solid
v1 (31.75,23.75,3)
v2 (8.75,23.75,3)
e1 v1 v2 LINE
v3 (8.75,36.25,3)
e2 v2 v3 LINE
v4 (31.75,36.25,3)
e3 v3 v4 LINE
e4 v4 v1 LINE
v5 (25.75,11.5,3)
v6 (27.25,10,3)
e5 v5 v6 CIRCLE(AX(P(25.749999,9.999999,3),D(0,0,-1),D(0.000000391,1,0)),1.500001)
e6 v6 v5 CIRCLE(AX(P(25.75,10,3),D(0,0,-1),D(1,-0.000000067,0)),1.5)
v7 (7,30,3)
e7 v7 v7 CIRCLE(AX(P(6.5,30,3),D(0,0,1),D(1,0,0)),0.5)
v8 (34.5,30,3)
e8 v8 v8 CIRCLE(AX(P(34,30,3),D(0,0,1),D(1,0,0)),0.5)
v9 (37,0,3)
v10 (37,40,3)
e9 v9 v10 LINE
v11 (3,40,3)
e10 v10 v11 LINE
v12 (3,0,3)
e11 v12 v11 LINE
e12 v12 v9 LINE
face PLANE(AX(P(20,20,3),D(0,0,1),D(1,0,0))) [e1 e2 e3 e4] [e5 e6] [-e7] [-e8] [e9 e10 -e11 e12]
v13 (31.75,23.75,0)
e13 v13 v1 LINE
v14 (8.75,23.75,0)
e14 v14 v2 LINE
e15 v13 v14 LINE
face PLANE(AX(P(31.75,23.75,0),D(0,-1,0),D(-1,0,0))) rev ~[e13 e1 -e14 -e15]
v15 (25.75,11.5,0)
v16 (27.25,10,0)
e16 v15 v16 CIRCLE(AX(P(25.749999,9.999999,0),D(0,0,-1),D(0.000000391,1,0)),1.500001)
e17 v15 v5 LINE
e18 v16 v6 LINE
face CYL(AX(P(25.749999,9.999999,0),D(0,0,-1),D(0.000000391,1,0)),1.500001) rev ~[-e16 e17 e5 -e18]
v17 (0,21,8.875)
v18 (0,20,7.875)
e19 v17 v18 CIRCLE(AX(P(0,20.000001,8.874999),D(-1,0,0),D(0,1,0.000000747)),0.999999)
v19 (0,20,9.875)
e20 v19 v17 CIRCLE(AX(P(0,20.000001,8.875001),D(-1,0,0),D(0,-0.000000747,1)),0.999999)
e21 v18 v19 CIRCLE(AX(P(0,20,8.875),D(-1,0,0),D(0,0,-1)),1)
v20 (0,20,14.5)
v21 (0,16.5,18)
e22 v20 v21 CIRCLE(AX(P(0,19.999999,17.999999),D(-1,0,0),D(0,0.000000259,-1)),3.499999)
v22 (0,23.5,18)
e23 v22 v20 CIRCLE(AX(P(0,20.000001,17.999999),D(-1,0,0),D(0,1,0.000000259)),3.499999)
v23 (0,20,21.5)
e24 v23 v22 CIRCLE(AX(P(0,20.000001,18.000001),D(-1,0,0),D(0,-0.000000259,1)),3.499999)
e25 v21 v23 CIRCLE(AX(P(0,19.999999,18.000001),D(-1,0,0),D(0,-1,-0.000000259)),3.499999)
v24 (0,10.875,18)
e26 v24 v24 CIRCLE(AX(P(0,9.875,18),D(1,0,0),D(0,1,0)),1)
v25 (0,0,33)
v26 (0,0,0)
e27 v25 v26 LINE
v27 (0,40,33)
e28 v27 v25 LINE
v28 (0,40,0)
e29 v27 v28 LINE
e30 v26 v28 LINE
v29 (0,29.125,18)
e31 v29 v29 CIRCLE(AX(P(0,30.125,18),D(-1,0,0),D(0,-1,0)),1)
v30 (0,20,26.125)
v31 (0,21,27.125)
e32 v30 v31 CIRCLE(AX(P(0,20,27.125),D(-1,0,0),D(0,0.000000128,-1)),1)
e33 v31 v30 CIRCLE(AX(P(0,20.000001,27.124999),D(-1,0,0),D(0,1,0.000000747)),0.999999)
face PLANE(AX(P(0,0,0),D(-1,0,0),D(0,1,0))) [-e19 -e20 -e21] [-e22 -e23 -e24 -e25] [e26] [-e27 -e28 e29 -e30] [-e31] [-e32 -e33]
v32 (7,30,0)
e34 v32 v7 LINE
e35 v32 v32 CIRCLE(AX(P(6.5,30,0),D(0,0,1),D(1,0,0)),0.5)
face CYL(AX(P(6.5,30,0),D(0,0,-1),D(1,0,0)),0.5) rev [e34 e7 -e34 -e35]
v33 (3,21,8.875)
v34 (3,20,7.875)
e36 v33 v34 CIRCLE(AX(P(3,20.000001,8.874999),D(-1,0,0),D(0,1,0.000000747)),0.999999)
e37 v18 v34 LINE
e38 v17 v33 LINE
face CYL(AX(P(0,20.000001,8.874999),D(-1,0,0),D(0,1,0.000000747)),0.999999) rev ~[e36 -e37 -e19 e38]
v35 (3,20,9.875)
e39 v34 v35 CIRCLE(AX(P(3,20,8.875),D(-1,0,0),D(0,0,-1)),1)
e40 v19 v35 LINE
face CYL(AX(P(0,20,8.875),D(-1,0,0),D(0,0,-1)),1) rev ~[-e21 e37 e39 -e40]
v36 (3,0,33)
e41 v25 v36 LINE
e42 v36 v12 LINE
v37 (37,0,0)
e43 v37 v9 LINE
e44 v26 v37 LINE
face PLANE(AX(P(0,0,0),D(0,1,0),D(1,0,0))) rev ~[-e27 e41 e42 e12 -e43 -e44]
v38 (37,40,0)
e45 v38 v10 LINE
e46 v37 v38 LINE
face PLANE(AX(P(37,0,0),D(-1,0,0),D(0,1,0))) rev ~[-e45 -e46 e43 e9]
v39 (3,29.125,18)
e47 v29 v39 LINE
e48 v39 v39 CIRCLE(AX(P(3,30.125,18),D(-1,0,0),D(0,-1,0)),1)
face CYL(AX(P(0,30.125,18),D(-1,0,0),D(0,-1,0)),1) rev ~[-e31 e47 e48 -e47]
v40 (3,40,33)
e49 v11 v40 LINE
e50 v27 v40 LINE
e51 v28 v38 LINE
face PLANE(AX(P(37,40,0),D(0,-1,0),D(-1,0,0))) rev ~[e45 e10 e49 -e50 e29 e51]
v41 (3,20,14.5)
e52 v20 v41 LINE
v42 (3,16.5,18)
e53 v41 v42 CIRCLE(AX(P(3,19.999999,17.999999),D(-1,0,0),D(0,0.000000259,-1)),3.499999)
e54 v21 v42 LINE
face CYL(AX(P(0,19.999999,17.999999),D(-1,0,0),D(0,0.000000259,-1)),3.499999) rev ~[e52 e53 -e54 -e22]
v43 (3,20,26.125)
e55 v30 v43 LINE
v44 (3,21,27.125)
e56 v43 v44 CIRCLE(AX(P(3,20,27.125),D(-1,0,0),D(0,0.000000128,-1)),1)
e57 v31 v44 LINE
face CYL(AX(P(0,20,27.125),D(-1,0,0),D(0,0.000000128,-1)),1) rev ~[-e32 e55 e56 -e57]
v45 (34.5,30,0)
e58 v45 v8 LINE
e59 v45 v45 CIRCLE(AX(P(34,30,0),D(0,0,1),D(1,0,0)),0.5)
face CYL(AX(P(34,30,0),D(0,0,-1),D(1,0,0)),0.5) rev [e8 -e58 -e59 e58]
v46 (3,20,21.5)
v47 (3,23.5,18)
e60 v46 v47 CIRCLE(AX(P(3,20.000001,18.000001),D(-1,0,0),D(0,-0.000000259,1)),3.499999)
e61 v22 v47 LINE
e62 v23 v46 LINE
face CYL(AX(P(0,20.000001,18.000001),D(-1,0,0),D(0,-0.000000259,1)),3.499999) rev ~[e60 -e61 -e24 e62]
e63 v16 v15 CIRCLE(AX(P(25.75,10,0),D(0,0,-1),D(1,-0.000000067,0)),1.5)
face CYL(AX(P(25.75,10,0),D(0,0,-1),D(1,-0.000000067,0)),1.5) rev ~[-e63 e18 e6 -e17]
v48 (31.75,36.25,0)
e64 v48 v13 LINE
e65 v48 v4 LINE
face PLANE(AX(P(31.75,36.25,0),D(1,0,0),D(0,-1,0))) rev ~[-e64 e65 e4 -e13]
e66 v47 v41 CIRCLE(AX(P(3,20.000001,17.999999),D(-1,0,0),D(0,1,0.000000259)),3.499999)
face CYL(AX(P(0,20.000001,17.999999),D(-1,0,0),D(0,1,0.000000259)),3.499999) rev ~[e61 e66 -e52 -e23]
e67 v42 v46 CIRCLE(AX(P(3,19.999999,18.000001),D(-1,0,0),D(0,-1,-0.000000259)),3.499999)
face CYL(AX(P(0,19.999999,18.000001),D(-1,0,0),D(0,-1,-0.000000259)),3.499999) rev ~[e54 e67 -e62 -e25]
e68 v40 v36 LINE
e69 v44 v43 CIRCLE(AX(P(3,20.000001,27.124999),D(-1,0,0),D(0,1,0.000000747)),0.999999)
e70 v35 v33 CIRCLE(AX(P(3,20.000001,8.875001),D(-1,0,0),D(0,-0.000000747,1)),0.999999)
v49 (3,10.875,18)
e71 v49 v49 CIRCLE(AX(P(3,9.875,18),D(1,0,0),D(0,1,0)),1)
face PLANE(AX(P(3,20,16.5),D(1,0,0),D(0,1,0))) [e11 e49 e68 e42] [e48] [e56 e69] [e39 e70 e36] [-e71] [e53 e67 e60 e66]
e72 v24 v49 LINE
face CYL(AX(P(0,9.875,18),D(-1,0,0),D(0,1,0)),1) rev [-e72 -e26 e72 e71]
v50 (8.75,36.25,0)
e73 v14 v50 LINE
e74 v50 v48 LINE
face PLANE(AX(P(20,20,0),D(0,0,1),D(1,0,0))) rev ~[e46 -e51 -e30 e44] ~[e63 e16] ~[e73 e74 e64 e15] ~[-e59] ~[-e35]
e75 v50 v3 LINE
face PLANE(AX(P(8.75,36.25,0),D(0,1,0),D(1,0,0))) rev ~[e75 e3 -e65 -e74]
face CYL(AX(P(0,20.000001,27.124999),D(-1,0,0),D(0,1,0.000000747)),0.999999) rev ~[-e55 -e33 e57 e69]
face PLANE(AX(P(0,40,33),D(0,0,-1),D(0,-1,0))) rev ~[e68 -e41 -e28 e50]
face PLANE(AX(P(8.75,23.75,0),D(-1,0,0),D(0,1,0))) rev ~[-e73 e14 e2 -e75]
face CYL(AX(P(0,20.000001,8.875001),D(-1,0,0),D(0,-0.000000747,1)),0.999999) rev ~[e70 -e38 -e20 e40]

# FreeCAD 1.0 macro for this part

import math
import FreeCAD as App
import Part
import Sketcher
from FreeCAD import Vector
Q = App.Units.Quantity


def add_polygon(sketch, points):
    """Adds a closed chain of lines whose ends are joined by coincident constraints."""
    first, n = sketch.GeometryCount, len(points)
    for a, b in zip(points, points[1:] + points[:1]):
        sketch.addGeometry(Part.LineSegment(App.Vector(*a, 0), App.Vector(*b, 0)), False)
    for i in range(n):
        sketch.addConstraint(Sketcher.Constraint("Coincident", first + i, 2, first + (i + 1) % n, 1))

doc = App.newDocument("Part")
body = doc.addObject("PartDesign::Body", "Body")

# Sketch on XY plane
sketch1 = doc.addObject("Sketcher::SketchObject", "Sketch")
body.addObject(sketch1)
sketch1.AttachmentSupport = (doc.XY_Plane, [""])
sketch1.MapMode = "FlatFace"
add_polygon(sketch1, [(37, 0), (37, 40), (0, 40), (0, 0)])  # lines 0-3
sketch1.addGeometry(Part.ArcOfCircle(Part.Circle(Vector(25.749999, 9.999999, 0), Vector(0, 0, 1), 1.500001), math.radians(0.000022), math.radians(89.999978)), False)  # 4
sketch1.addGeometry(Part.ArcOfCircle(Part.Circle(Vector(25.75, 10, 0), Vector(0, 0, 1), 1.5), math.radians(90.000004), math.radians(359.999996)), False)  # 5
sketch1.addGeometry(Part.Circle(Vector(6.5, 30, 0), Vector(0, 0, 1), 0.5), False)  # 6
add_polygon(sketch1, [(31.75, 23.75), (8.75, 23.75), (8.75, 36.25), (31.75, 36.25)])  # lines 7-10
sketch1.addGeometry(Part.Circle(Vector(34, 30, 0), Vector(0, 0, 1), 0.5), False)  # 11
sketch1.addConstraint(Sketcher.Constraint("Tangent", 4, 1, 5, 2))
sketch1.addConstraint(Sketcher.Constraint("Coincident", 5, 1, 4, 2))
sketch1.addConstraint(Sketcher.Constraint("Vertical", 0))
sketch1.addConstraint(Sketcher.Constraint("Horizontal", 1))
sketch1.addConstraint(Sketcher.Constraint("Vertical", 2))
sketch1.addConstraint(Sketcher.Constraint("Horizontal", 3))
sketch1.addConstraint(Sketcher.Constraint("Horizontal", 7))
sketch1.addConstraint(Sketcher.Constraint("Vertical", 8))
sketch1.addConstraint(Sketcher.Constraint("Horizontal", 9))
sketch1.addConstraint(Sketcher.Constraint("Vertical", 10))
sketch1.addConstraint(Sketcher.Constraint("Coincident", 2, 2, -1, 1))
sketch1.addConstraint(Sketcher.Constraint("Equal", 6, 11))
sketch1.addConstraint(Sketcher.Constraint("Horizontal", 6, 3, 11, 3))
sketch1.addConstraint(Sketcher.Constraint("Horizontal", 5, 3, 4, 1))
sketch1.addConstraint(Sketcher.Constraint("Vertical", 4, 3, 5, 1))
sketch1.addConstraint(Sketcher.Constraint("Diameter", 6, Q("1 mm")))
sketch1.addConstraint(Sketcher.Constraint("Radius", 4, Q("1.500001 mm")))
sketch1.addConstraint(Sketcher.Constraint("DistanceX", 1, 2, 1, 1, Q("37 mm")))
sketch1.addConstraint(Sketcher.Constraint("DistanceX", 7, 2, 7, 1, Q("23 mm")))
sketch1.addConstraint(Sketcher.Constraint("DistanceY", 0, 1, 0, 2, Q("40 mm")))
sketch1.addConstraint(Sketcher.Constraint("DistanceY", 8, 1, 8, 2, Q("12.5 mm")))
sketch1.addConstraint(Sketcher.Constraint("DistanceY", -1, 1, 4, 3, Q("9.999999 mm")))
sketch1.addConstraint(Sketcher.Constraint("DistanceY", -1, 1, 6, 3, Q("30 mm")))
sketch1.addConstraint(Sketcher.Constraint("DistanceX", -1, 1, 11, 3, Q("34 mm")))
sketch1.addConstraint(Sketcher.Constraint("DistanceX", 7, 2, 5, 1, Q("17 mm")))
sketch1.addConstraint(Sketcher.Constraint("DistanceX", -1, 1, 6, 3, Q("6.5 mm")))
sketch1.addConstraint(Sketcher.Constraint("DistanceX", -1, 1, 4, 3, Q("25.749999 mm")))
sketch1.addConstraint(Sketcher.Constraint("DistanceY", -1, 1, 7, 2, Q("23.75 mm")))
pad1 = doc.addObject("PartDesign::Pad", "Pad")
body.addObject(pad1)
pad1.Profile = sketch1
pad1.Length = 3

# Sketch on YZ plane
sketch2 = doc.addObject("Sketcher::SketchObject", "Sketch001")
body.addObject(sketch2)
sketch2.AttachmentSupport = (doc.YZ_Plane, [""])
sketch2.MapMode = "FlatFace"
add_polygon(sketch2, [(0, 0), (40, 0), (40, 33), (0, 33)])  # lines 0-3
sketch2.addGeometry(Part.Circle(Vector(9.875, 18, 0), Vector(0, 0, 1), 1), False)  # 4
sketch2.addGeometry(Part.ArcOfCircle(Part.Circle(Vector(20.000001, 8.875001, 0), Vector(0, 0, 1), 0.999999), math.radians(-0.000043), math.radians(90.000043)), False)  # 5
sketch2.addGeometry(Part.ArcOfCircle(Part.Circle(Vector(20.000001, 8.874999, 0), Vector(0, 0, 1), 0.999999), math.radians(-90.000043), math.radians(0.000043)), False)  # 6
sketch2.addGeometry(Part.ArcOfCircle(Part.Circle(Vector(20, 8.875, 0), Vector(0, 0, 1), 1), math.radians(90), math.radians(270)), False)  # 7
sketch2.addGeometry(Part.ArcOfCircle(Part.Circle(Vector(20.000001, 18.000001, 0), Vector(0, 0, 1), 3.499999), math.radians(-0.000015), math.radians(90.000015)), False)  # 8
sketch2.addGeometry(Part.ArcOfCircle(Part.Circle(Vector(20.000001, 17.999999, 0), Vector(0, 0, 1), 3.499999), math.radians(-90.000015), math.radians(0.000015)), False)  # 9
sketch2.addGeometry(Part.ArcOfCircle(Part.Circle(Vector(19.999999, 17.999999, 0), Vector(0, 0, 1), 3.499999), math.radians(179.999985), math.radians(270.000015)), False)  # 10
sketch2.addGeometry(Part.ArcOfCircle(Part.Circle(Vector(19.999999, 18.000001, 0), Vector(0, 0, 1), 3.499999), math.radians(89.999985), math.radians(180.000015)), False)  # 11
sketch2.addGeometry(Part.Circle(Vector(30.125, 18, 0), Vector(0, 0, 1), 1), False)  # 12
sketch2.addGeometry(Part.ArcOfCircle(Part.Circle(Vector(20, 27.125, 0), Vector(0, 0, 1), 1), math.radians(-0.000007), math.radians(270.000007)), False)  # 13
sketch2.addGeometry(Part.ArcOfCircle(Part.Circle(Vector(20.000001, 27.124999, 0), Vector(0, 0, 1), 0.999999), math.radians(-90.000043), math.radians(0.000043)), False)  # 14
sketch2.addConstraint(Sketcher.Constraint("Tangent", 5, 1, 6, 2))
sketch2.addConstraint(Sketcher.Constraint("Tangent", 6, 1, 7, 2))
sketch2.addConstraint(Sketcher.Constraint("Tangent", 7, 1, 5, 2))
sketch2.addConstraint(Sketcher.Constraint("Tangent", 8, 1, 9, 2))
sketch2.addConstraint(Sketcher.Constraint("Tangent", 9, 1, 10, 2))
sketch2.addConstraint(Sketcher.Constraint("Tangent", 10, 1, 11, 2))
sketch2.addConstraint(Sketcher.Constraint("Tangent", 11, 1, 8, 2))
sketch2.addConstraint(Sketcher.Constraint("Tangent", 13, 1, 14, 2))
sketch2.addConstraint(Sketcher.Constraint("Coincident", 14, 1, 13, 2))
sketch2.addConstraint(Sketcher.Constraint("Horizontal", 0))
sketch2.addConstraint(Sketcher.Constraint("Vertical", 1))
sketch2.addConstraint(Sketcher.Constraint("Horizontal", 2))
sketch2.addConstraint(Sketcher.Constraint("Vertical", 3))
sketch2.addConstraint(Sketcher.Constraint("Coincident", 3, 2, -1, 1))
sketch2.addConstraint(Sketcher.Constraint("Equal", 4, 5))
sketch2.addConstraint(Sketcher.Constraint("Equal", 8, 9))
sketch2.addConstraint(Sketcher.Constraint("Equal", 7, 12))
sketch2.addConstraint(Sketcher.Constraint("Equal", 12, 13))
sketch2.addConstraint(Sketcher.Constraint("Horizontal", 4, 3, 8, 3))
sketch2.addConstraint(Sketcher.Constraint("Horizontal", 11, 3, 12, 3))
sketch2.addConstraint(Sketcher.Constraint("Horizontal", 7, 3, 5, 1))
sketch2.addConstraint(Sketcher.Constraint("Horizontal", 12, 3, 8, 1))
sketch2.addConstraint(Sketcher.Constraint("Horizontal", 8, 1, 10, 1))
sketch2.addConstraint(Sketcher.Constraint("Horizontal", 14, 3, 13, 1))
sketch2.addConstraint(Sketcher.Constraint("Vertical", 7, 3, 8, 3))
sketch2.addConstraint(Sketcher.Constraint("Vertical", 11, 3, 13, 3))
sketch2.addConstraint(Sketcher.Constraint("Vertical", 14, 3, 6, 1))
sketch2.addConstraint(Sketcher.Constraint("Vertical", 6, 1, 7, 1))
sketch2.addConstraint(Sketcher.Constraint("Vertical", 7, 1, 9, 1))
sketch2.addConstraint(Sketcher.Constraint("Vertical", 9, 1, 11, 1))
sketch2.addConstraint(Sketcher.Constraint("Vertical", 11, 1, 14, 1))
sketch2.addConstraint(Sketcher.Constraint("Diameter", 4, Q("2 mm")))
sketch2.addConstraint(Sketcher.Constraint("Radius", 8, Q("3.499999 mm")))
sketch2.addConstraint(Sketcher.Constraint("DistanceX", 0, 1, 0, 2, Q("40 mm")))
sketch2.addConstraint(Sketcher.Constraint("DistanceY", 1, 1, 1, 2, Q("33 mm")))
sketch2.addConstraint(Sketcher.Constraint("DistanceY", -1, 1, 4, 3, Q("18 mm")))
sketch2.addConstraint(Sketcher.Constraint("DistanceX", -1, 1, 5, 3, Q("20.000001 mm")))
sketch2.addConstraint(Sketcher.Constraint("DistanceX", -1, 1, 4, 3, Q("9.875 mm")))
sketch2.addConstraint(Sketcher.Constraint("DistanceY", -1, 1, 5, 3, Q("8.875001 mm")))
sketch2.addConstraint(Sketcher.Constraint("DistanceX", -1, 1, 12, 3, Q("30.125 mm")))
sketch2.addConstraint(Sketcher.Constraint("DistanceY", -1, 1, 13, 3, Q("27.125 mm")))
pad2 = doc.addObject("PartDesign::Pad", "Pad001")
body.addObject(pad2)
pad2.Profile = sketch2
pad2.Length = 3

doc.recompute()
